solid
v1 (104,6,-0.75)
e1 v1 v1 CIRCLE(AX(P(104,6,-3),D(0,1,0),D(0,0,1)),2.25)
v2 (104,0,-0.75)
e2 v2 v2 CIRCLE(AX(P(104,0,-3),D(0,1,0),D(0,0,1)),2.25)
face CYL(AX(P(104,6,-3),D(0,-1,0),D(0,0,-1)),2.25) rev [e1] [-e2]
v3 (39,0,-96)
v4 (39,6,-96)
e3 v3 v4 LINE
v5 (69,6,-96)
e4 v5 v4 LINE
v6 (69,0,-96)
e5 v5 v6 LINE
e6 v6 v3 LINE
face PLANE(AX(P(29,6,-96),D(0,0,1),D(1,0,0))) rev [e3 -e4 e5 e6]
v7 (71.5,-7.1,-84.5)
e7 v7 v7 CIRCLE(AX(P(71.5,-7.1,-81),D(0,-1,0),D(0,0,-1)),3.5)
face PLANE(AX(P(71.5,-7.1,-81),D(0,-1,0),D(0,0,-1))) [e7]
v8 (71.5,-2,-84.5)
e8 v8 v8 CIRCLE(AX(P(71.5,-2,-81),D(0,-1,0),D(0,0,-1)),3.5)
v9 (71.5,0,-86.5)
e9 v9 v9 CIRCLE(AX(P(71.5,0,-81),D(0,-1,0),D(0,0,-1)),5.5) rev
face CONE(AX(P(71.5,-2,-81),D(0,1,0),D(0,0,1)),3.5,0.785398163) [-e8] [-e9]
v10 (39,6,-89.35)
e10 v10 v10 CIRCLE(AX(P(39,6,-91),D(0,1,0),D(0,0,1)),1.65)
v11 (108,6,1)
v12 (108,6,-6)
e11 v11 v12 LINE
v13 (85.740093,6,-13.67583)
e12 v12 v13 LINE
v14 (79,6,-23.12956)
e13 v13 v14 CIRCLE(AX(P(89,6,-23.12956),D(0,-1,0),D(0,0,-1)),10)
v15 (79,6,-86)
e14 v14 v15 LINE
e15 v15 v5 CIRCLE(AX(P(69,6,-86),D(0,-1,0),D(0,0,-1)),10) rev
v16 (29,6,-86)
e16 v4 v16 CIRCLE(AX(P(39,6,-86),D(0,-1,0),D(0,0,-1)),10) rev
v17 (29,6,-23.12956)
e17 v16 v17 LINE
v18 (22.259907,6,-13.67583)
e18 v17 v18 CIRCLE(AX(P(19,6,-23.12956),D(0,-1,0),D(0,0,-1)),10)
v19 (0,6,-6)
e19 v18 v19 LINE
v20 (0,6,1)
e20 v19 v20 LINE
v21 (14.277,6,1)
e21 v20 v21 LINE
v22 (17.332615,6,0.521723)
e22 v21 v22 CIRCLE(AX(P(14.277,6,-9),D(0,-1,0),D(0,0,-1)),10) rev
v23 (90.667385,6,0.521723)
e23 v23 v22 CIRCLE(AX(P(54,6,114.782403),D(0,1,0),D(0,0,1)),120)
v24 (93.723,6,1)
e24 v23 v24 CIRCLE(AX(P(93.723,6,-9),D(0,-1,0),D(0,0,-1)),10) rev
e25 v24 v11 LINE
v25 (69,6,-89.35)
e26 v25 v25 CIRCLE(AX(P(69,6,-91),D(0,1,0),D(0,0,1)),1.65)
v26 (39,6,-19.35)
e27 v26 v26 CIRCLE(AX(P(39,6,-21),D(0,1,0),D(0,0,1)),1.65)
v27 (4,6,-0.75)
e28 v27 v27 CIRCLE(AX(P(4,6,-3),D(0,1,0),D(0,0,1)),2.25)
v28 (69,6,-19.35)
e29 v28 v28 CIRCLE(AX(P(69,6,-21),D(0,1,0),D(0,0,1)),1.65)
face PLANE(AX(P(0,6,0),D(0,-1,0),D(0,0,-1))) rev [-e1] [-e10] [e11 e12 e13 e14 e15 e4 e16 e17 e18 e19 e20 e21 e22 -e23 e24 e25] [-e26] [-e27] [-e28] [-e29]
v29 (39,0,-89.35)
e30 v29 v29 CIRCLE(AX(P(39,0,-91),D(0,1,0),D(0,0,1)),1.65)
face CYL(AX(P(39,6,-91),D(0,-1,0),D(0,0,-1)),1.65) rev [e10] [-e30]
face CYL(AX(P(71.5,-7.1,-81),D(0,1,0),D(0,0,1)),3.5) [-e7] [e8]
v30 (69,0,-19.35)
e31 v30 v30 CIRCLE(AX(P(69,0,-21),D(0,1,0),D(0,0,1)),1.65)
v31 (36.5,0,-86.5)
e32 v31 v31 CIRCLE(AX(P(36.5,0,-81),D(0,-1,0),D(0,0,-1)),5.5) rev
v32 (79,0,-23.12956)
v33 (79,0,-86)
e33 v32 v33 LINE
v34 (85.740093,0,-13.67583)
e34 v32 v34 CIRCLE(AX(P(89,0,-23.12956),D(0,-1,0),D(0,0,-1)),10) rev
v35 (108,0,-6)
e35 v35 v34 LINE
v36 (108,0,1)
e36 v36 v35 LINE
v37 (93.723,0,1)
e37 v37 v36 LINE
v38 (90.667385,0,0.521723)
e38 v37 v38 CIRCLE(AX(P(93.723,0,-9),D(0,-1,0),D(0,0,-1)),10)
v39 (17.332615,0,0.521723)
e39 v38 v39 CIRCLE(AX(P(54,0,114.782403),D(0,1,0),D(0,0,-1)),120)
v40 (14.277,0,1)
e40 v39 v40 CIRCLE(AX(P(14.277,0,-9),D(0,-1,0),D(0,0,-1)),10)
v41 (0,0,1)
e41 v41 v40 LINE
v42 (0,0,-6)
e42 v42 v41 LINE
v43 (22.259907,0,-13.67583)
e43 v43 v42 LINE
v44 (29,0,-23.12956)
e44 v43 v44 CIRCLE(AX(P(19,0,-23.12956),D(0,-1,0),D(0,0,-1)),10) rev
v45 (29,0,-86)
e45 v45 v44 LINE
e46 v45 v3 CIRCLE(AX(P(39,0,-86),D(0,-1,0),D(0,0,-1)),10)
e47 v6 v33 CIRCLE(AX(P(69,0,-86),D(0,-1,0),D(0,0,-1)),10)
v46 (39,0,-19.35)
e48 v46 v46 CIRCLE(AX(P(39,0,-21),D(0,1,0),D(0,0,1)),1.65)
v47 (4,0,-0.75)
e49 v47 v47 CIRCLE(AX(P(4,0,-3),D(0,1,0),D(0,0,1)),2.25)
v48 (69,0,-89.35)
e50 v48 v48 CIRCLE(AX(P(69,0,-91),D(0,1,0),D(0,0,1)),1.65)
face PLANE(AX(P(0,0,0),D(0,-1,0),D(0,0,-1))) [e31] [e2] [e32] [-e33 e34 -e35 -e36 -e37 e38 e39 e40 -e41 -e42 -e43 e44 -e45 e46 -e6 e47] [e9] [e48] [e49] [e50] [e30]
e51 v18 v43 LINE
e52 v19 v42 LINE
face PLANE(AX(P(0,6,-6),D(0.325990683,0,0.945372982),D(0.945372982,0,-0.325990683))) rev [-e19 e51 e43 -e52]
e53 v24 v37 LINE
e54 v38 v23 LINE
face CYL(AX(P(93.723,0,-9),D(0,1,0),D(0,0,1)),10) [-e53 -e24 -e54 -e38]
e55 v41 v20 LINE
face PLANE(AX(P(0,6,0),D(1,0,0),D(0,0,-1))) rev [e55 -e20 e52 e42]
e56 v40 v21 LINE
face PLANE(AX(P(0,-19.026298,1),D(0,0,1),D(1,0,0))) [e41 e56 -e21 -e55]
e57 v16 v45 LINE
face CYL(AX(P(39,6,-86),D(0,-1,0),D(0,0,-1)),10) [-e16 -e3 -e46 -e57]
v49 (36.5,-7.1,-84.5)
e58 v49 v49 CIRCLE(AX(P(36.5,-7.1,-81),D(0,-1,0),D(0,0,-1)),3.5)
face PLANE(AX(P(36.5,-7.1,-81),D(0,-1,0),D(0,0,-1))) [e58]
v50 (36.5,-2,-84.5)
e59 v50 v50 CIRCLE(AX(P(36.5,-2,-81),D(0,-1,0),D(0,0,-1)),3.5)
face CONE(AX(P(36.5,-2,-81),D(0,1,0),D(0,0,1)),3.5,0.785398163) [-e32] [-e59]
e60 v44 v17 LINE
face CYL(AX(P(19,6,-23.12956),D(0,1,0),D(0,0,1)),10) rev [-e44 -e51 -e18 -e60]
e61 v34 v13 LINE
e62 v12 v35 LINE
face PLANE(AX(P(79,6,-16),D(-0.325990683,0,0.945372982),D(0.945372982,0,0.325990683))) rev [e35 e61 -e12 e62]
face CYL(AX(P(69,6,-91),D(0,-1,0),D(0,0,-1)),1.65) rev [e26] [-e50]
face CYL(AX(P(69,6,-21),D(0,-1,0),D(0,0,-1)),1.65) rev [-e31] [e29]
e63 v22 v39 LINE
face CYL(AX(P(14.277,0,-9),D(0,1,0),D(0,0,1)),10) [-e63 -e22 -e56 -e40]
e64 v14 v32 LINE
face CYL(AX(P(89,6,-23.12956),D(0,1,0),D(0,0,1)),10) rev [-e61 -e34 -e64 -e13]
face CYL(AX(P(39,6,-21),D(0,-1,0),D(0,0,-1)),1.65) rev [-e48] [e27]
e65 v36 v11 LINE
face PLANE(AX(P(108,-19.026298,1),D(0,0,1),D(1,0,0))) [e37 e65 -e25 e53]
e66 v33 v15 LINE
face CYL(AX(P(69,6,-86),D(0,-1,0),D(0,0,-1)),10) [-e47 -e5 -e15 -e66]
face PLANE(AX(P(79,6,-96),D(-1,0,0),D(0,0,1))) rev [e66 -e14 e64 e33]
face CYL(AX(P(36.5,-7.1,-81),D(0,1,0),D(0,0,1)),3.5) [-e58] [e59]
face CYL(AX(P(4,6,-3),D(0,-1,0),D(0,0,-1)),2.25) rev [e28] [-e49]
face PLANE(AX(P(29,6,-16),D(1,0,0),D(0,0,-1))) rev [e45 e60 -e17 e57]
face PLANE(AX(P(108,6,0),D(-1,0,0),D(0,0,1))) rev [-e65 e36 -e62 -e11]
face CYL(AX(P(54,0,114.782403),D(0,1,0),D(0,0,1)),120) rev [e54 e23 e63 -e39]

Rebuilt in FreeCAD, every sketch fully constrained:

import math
import FreeCAD as App
import Part
import Sketcher
from FreeCAD import Vector
Q = App.Units.Quantity


def edges_at(feature, points):
    """Names of the edges that pass closest to the given points."""
    edges = feature.Shape.Edges
    near = lambda p: min(range(len(edges)), key=lambda i: edges[i].distToShape(Part.Vertex(*p))[0])
    return sorted({f"Edge{near(p) + 1}" for p in points})


def add_polygon(sketch, points):
    """Adds a closed chain of lines whose ends are joined by coincident constraints."""
    first, n = sketch.GeometryCount, len(points)
    for a, b in zip(points, points[1:] + points[:1]):
        sketch.addGeometry(Part.LineSegment(App.Vector(*a, 0), App.Vector(*b, 0)), False)
    for i in range(n):
        sketch.addConstraint(Sketcher.Constraint("Coincident", first + i, 2, first + (i + 1) % n, 1))

doc = App.newDocument("Part")
body = doc.addObject("PartDesign::Body", "Body")

sketch1 = body.newObject("Sketcher::SketchObject", "Sketch")
sketch1.AttachmentSupport = (doc.getObject("XZ_Plane"), [""])
sketch1.MapMode = "FlatFace"
add_polygon(sketch1, [(0, 0), (108, 0), (108, -6), (79, -16), (79, -96), (29, -96), (29, -16), (0, -6)])
sketch1.addGeometry(Part.Circle(Vector(4, -3, 0), Vector(0, 0, 1), 2.2), False)
sketch1.addGeometry(Part.Circle(Vector(39, -21, 0), Vector(0, 0, 1), 1.6), False)
sketch1.addGeometry(Part.Circle(Vector(69, -21, 0), Vector(0, 0, 1), 1.6), False)
sketch1.addGeometry(Part.Circle(Vector(104, -3, 0), Vector(0, 0, 1), 2.2), False)
sketch1.addGeometry(Part.Circle(Vector(39, -91, 0), Vector(0, 0, 1), 1.6), False)
sketch1.addGeometry(Part.Circle(Vector(69, -91, 0), Vector(0, 0, 1), 1.6), False)
sketch1.addConstraint([
    Sketcher.Constraint("Horizontal", 0),
    Sketcher.Constraint("Vertical", 1),
    Sketcher.Constraint("Vertical", 3),
    Sketcher.Constraint("Horizontal", 4),
    Sketcher.Constraint("Vertical", 5),
    Sketcher.Constraint("Vertical", 7),
    Sketcher.Constraint("Coincident", 7, 2, -1, 1),
    Sketcher.Constraint("Equal", 9, 10),
    Sketcher.Constraint("Equal", 8, 11),
    Sketcher.Constraint("Equal", 10, 12),
    Sketcher.Constraint("Equal", 12, 13),
    Sketcher.Constraint("Horizontal", 9, 3, 10, 3),
    Sketcher.Constraint("Horizontal", 8, 3, 11, 3),
    Sketcher.Constraint("Horizontal", 12, 3, 13, 3),
    Sketcher.Constraint("Horizontal", 2, 2, 5, 2),
    Sketcher.Constraint("Horizontal", 1, 2, 6, 2),
    Sketcher.Constraint("Vertical", 9, 3, 12, 3),
    Sketcher.Constraint("Vertical", 10, 3, 13, 3),
    Sketcher.Constraint("Equal", 2, 6),
    Sketcher.Constraint("Diameter", 8, Q("4.5 mm")),
    Sketcher.Constraint("Diameter", 9, Q("3.3 mm")),
    Sketcher.Constraint("DistanceX", 0, 1, 0, 2, Q("108 mm")),
    Sketcher.Constraint("DistanceX", 4, 2, 4, 1, Q("50 mm")),
    Sketcher.Constraint("DistanceY", 1, 2, 1, 1, Q("6 mm")),
    Sketcher.Constraint("DistanceY", 3, 2, 3, 1, Q("80 mm")),
    Sketcher.Constraint("DistanceX", -1, 1, 8, 3, Q("4 mm")),
    Sketcher.Constraint("DistanceY", 8, 3, -1, 1, Q("3 mm")),
    Sketcher.Constraint("DistanceX", -1, 1, 9, 3, Q("39 mm")),
    Sketcher.Constraint("DistanceY", 9, 3, -1, 1, Q("21 mm")),
    Sketcher.Constraint("DistanceX", -1, 1, 10, 3, Q("69 mm")),
    Sketcher.Constraint("DistanceX", -1, 1, 11, 3, Q("104 mm")),
    Sketcher.Constraint("DistanceY", 12, 3, -1, 1, Q("91 mm")),
    Sketcher.Constraint("DistanceY", 2, 2, -1, 1, Q("16 mm")),
])
pad1 = body.newObject("PartDesign::Pad", "Pad")
pad1.Profile = sketch1
pad1.Length = 6
pad1.Reversed = True

sketch2 = body.newObject("Sketcher::SketchObject", "Sketch001")
sketch2.AttachmentSupport = (doc.getObject("XZ_Plane"), [""])
sketch2.MapMode = "FlatFace"
sketch2.AttachmentOffset = App.Placement(Vector(0, 0, -6), App.Rotation())
sketch2.addGeometry([
    Part.LineSegment(Vector(19, 0, 0), Vector(89, 0, 0)),
    Part.ArcOfCircle(Part.Circle(Vector(54, 115, 0), Vector(0, 0, 1), 120), math.radians(-107), math.radians(-73)),
], False)
sketch2.addConstraint([
    Sketcher.Constraint("Coincident", 0, 1, 1, 1),
    Sketcher.Constraint("Coincident", 1, 2, 0, 2),
    Sketcher.Constraint("Horizontal", 0),
    Sketcher.Constraint("PointOnObject", 0, 1, -1),
    Sketcher.Constraint("Radius", 1, Q("120 mm")),
    Sketcher.Constraint("DistanceX", 0, 1, 0, 2, Q("70 mm")),
    Sketcher.Constraint("DistanceX", -1, 1, 1, 3, Q("54 mm")),
])
pocket1 = body.newObject("PartDesign::Pocket", "Pocket")
pocket1.Profile = sketch2
pocket1.Type = "ThroughAll"
pocket1.Midplane = True

sketch3 = body.newObject("Sketcher::SketchObject", "Sketch002")
sketch3.AttachmentSupport = (doc.getObject("XZ_Plane"), [""])
sketch3.MapMode = "FlatFace"
sketch3.addGeometry([
    Part.Circle(Vector(36.5, -81, 0), Vector(0, 0, 1), 3.5),
    Part.Circle(Vector(71.5, -81, 0), Vector(0, 0, 1), 3.5),
], False)
sketch3.addConstraint([
    Sketcher.Constraint("Equal", 0, 1),
    Sketcher.Constraint("Horizontal", 0, 3, 1, 3),
    Sketcher.Constraint("Diameter", 0, Q("7 mm")),
    Sketcher.Constraint("DistanceY", 0, 3, -1, 1, Q("81 mm")),
    Sketcher.Constraint("DistanceX", 0, 3, 1, 3, Q("35 mm")),
    Sketcher.Constraint("DistanceX", -1, 1, 0, 3, Q("36.5 mm")),
])
pad2 = body.newObject("PartDesign::Pad", "Pad001")
pad2.Profile = sketch3
pad2.Length = 7.1
doc.recompute()

chamfer = body.newObject("PartDesign::Chamfer", "Chamfer")
chamfer.Base = (pad2, edges_at(pad2, [(33, 0, -81), (68, 0, -81)]))
chamfer.Size = 2

sketch4 = body.newObject("Sketcher::SketchObject", "Sketch003")
sketch4.AttachmentSupport = (doc.getObject("XZ_Plane"), [""])
sketch4.MapMode = "FlatFace"
sketch4.AttachmentOffset = App.Placement(Vector(0, 0, -6), App.Rotation())
sketch4.addGeometry([
    Part.LineSegment(Vector(0, 0, 0), Vector(0, 1, 0)),
    Part.LineSegment(Vector(0, 1, 0), Vector(15.9, 1, 0)),
    Part.ArcOfCircle(Part.Circle(Vector(54, 114.8, 0), Vector(0, 0, 1), 120), math.radians(-108.52), math.radians(-106.96)),
    Part.LineSegment(Vector(19, 0, 0), Vector(0, 0, 0)),
    Part.LineSegment(Vector(92.1, 1, 0), Vector(108, 1, 0)),
    Part.LineSegment(Vector(108, 1, 0), Vector(108, 0, 0)),
    Part.LineSegment(Vector(108, 0, 0), Vector(89, 0, 0)),
    Part.ArcOfCircle(Part.Circle(Vector(54, 114.8, 0), Vector(0, 0, 1), 120), math.radians(-73.04), math.radians(-71.48)),
], False)
sketch4.addConstraint([
    Sketcher.Constraint("Coincident", 0, 2, 1, 1),
    Sketcher.Constraint("Coincident", 1, 2, 2, 1),
    Sketcher.Constraint("Coincident", 2, 2, 3, 1),
    Sketcher.Constraint("Coincident", 3, 2, 0, 1),
    Sketcher.Constraint("Coincident", 4, 2, 5, 1),
    Sketcher.Constraint("Coincident", 5, 2, 6, 1),
    Sketcher.Constraint("Coincident", 6, 2, 7, 1),
    Sketcher.Constraint("Coincident", 7, 2, 4, 1),
    Sketcher.Constraint("Vertical", 0),
    Sketcher.Constraint("Horizontal", 1),
    Sketcher.Constraint("Horizontal", 3),
    Sketcher.Constraint("Horizontal", 4),
    Sketcher.Constraint("Vertical", 5),
    Sketcher.Constraint("Horizontal", 6),
    Sketcher.Constraint("Coincident", 3, 2, -1, 1),
    Sketcher.Constraint("Coincident", 7, 3, 2, 3),
    Sketcher.Constraint("Equal", 2, 7),
    Sketcher.Constraint("PointOnObject", 5, 2, -1),
    Sketcher.Constraint("Horizontal", 1, 2, 4, 2),
    Sketcher.Constraint("Equal", 1, 4),
    Sketcher.Constraint("Radius", 2, Q("120 mm")),
    Sketcher.Constraint("DistanceX", 3, 2, 3, 1, Q("19 mm")),
    Sketcher.Constraint("DistanceY", 0, 1, 0, 2, Q("1 mm")),
    Sketcher.Constraint("DistanceX", -1, 1, 2, 3, Q("54 mm")),
])
pad3 = body.newObject("PartDesign::Pad", "Pad002")
pad3.Profile = sketch4
pad3.Length = 6
doc.recompute()

fillet = body.newObject("PartDesign::Fillet", "Fillet")
fillet.Base = (pad3, edges_at(pad3, [
    (29, 3, -16),
    (29, 3, -96),
    (79, 3, -96),
    (79, 3, -16),
    (15.874, 3, 1),
    (92.126, 3, 1),
]))
fillet.Radius = 10

doc.recompute()
